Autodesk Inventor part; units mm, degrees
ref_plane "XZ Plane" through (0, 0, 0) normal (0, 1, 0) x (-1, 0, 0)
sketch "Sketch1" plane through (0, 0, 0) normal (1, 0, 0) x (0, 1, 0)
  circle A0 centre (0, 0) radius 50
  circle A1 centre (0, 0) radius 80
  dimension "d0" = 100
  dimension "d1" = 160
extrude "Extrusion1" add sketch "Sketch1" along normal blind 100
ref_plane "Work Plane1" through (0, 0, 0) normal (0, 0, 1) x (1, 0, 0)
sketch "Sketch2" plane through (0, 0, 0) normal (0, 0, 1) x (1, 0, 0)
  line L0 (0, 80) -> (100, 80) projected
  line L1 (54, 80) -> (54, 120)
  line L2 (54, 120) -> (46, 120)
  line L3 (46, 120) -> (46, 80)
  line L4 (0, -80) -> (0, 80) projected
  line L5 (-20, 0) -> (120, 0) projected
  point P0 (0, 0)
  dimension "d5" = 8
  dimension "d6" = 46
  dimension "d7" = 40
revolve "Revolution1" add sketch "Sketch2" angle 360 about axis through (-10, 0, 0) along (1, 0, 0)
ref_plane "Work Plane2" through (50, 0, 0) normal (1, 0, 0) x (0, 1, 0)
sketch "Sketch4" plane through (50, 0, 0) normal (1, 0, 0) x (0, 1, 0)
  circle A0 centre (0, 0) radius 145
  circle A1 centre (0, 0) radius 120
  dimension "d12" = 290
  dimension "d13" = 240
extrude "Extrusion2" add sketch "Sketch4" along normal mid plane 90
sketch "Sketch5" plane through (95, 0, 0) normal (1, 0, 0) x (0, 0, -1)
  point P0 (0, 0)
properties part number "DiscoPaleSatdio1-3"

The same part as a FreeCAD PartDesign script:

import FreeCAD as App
import Part
import Sketcher

V = App.Vector

doc = App.newDocument("Part")
body = doc.addObject("PartDesign::Body", "Body")

sketch1 = body.newObject("Sketcher::SketchObject", "Sketch")
sketch1.AttachmentSupport = (doc.getObject("YZ_Plane"), [""])
sketch1.MapMode = "FlatFace"
sketch1.addGeometry([
    Part.Circle(V(0, 0, 0), V(0, 0, 1), 80),
    Part.Circle(V(0, 0, 0), V(0, 0, 1), 50),
], False)
sketch1.addConstraint([
    Sketcher.Constraint("Coincident", 0, 3, -1, 1),
    Sketcher.Constraint("Coincident", 1, 3, -1, 1),
    Sketcher.Constraint("Diameter", 0, 160.0),
    Sketcher.Constraint("Diameter", 1, 100.0),
])
pad1 = body.newObject("PartDesign::Pad", "Pad")
pad1.Profile = sketch1
pad1.Length = 100

sketch2 = body.newObject("Sketcher::SketchObject", "Sketch001")
sketch2.AttachmentSupport = (doc.getObject("XY_Plane"), [""])
sketch2.MapMode = "FlatFace"
sketch2.addGeometry([
    Part.LineSegment(V(46, 120, 0), V(46, 80, 0)),
    Part.LineSegment(V(46, 80, 0), V(54, 80, 0)),
    Part.LineSegment(V(54, 80, 0), V(54, 120, 0)),
    Part.LineSegment(V(54, 120, 0), V(46, 120, 0)),
], False)
sketch2.addConstraint([
    Sketcher.Constraint("Coincident", 0, 2, 1, 1),
    Sketcher.Constraint("Coincident", 1, 2, 2, 1),
    Sketcher.Constraint("Coincident", 2, 2, 3, 1),
    Sketcher.Constraint("Coincident", 3, 2, 0, 1),
    Sketcher.Constraint("Vertical", 0),
    Sketcher.Constraint("Horizontal", 1),
    Sketcher.Constraint("Vertical", 2),
    Sketcher.Constraint("Horizontal", 3),
    Sketcher.Constraint("DistanceX", 1, 1, 1, 2, 8.0),
    Sketcher.Constraint("DistanceY", 0, 2, 0, 1, 40.0),
    Sketcher.Constraint("DistanceX", -1, 1, 0, 2, 46.0),
    Sketcher.Constraint("DistanceY", -1, 1, 0, 2, 80.0),
])
revolution = body.newObject("PartDesign::Revolution", "Revolution")
revolution.Profile = sketch2
revolution.ReferenceAxis = (sketch2, ["H_Axis"])
revolution.Angle = 360

sketch3 = body.newObject("Sketcher::SketchObject", "Sketch002")
sketch3.AttachmentSupport = (doc.getObject("YZ_Plane"), [""])
sketch3.MapMode = "FlatFace"
sketch3.AttachmentOffset = App.Placement(V(0, 0, 50), App.Rotation())
sketch3.addGeometry([
    Part.Circle(V(0, 0, 0), V(0, 0, 1), 145),
    Part.Circle(V(0, 0, 0), V(0, 0, 1), 120),
], False)
sketch3.addConstraint([
    Sketcher.Constraint("Coincident", 0, 3, -1, 1),
    Sketcher.Constraint("Coincident", 1, 3, -1, 1),
    Sketcher.Constraint("Diameter", 0, 290.0),
    Sketcher.Constraint("Diameter", 1, 240.0),
])
pad2 = body.newObject("PartDesign::Pad", "Pad001")
pad2.Profile = sketch3
pad2.Length = 90
pad2.Midplane = True

doc.recompute()
